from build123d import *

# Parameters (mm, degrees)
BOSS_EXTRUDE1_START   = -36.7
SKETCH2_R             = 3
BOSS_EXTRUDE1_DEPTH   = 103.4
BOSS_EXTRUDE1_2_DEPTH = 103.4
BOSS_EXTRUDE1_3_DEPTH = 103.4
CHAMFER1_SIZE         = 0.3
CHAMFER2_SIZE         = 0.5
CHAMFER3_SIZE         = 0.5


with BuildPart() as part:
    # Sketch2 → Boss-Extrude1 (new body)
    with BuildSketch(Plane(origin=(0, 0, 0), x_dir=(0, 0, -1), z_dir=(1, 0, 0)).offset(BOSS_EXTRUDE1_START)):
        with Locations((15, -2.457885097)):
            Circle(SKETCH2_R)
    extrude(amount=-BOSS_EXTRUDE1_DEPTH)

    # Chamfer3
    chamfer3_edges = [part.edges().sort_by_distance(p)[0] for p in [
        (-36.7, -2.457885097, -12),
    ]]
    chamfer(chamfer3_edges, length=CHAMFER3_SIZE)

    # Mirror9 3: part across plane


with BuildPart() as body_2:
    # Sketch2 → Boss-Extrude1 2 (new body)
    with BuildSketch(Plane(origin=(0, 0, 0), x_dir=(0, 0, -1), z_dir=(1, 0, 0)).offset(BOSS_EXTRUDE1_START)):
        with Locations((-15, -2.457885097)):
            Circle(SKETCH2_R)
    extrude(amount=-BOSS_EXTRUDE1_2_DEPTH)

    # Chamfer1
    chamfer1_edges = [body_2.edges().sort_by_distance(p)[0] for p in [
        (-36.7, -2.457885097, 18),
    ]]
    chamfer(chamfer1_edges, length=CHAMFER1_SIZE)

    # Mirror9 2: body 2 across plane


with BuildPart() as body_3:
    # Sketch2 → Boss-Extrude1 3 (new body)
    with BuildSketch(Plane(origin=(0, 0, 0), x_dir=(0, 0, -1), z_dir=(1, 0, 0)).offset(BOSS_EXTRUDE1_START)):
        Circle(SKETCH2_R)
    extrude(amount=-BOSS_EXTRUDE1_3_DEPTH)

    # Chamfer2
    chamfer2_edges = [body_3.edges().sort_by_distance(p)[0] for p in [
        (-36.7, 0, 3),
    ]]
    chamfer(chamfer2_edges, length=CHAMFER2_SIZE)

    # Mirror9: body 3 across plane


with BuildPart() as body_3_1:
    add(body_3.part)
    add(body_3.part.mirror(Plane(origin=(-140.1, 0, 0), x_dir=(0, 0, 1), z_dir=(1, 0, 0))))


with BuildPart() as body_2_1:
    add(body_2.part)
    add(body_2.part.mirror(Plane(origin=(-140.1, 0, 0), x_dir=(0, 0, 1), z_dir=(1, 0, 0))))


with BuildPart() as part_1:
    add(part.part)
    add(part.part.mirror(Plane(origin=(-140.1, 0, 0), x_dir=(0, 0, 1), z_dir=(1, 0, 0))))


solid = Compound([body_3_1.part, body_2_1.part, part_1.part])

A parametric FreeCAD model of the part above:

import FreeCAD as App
import Part
import Sketcher
Q = App.Units.Quantity


def edges_at(feature, points):
    """Names of the edges that pass closest to the given points."""
    edges = feature.Shape.Edges
    near = lambda p: min(range(len(edges)), key=lambda i: edges[i].distToShape(Part.Vertex(*p))[0])
    return sorted({f"Edge{near(p) + 1}" for p in points})

doc = App.newDocument("Part")
body = doc.addObject("PartDesign::Body", "Body")

sketch1 = doc.addObject("Sketcher::SketchObject", "Sketch")
body.addObject(sketch1)
sketch1.AttachmentSupport = (doc.YZ_Plane, [""])
sketch1.MapMode = "FlatFace"
sketch1.AttachmentOffset = App.Placement(App.Vector(0, 0, -36.7), App.Rotation())
sketch1.addGeometry(Part.Circle(App.Vector(-2.5, -15, 0), App.Vector(0, 0, 1), 3), False)
sketch1.addConstraint([
    Sketcher.Constraint("Diameter", 0, Q("6 mm")),
    Sketcher.Constraint("DistanceY", 0, 3, -1, 1, Q("15 mm")),
    Sketcher.Constraint("DistanceX", 0, 3, -1, 1, Q("2.457885 mm")),
])
pad1 = doc.addObject("PartDesign::Pad", "Pad")
body.addObject(pad1)
pad1.Profile = sketch1
pad1.Length = 103.4
pad1.Reversed = True
doc.recompute()

chamfer = doc.addObject("PartDesign::Chamfer", "Chamfer")
body.addObject(chamfer)
chamfer.Base = (pad1, edges_at(pad1, [(-36.7, -2.458, -12)]))
chamfer.Size = 0.5
body2 = doc.addObject("PartDesign::Body", "Body001")

sketch2 = doc.addObject("Sketcher::SketchObject", "Sketch001")
body2.addObject(sketch2)
sketch2.AttachmentSupport = (doc.getObject("YZ_Plane001"), [""])
sketch2.MapMode = "FlatFace"
sketch2.AttachmentOffset = App.Placement(App.Vector(0, 0, -36.7), App.Rotation())
sketch2.addGeometry(Part.Circle(App.Vector(-2.5, 15, 0), App.Vector(0, 0, 1), 3), False)
sketch2.addConstraint([
    Sketcher.Constraint("Diameter", 0, Q("6 mm")),
    Sketcher.Constraint("DistanceY", -1, 1, 0, 3, Q("15 mm")),
    Sketcher.Constraint("DistanceX", 0, 3, -1, 1, Q("2.457885 mm")),
])
pad2 = doc.addObject("PartDesign::Pad", "Pad001")
body2.addObject(pad2)
pad2.Profile = sketch2
pad2.Length = 103.4
pad2.Reversed = True
doc.recompute()

chamfer2 = doc.addObject("PartDesign::Chamfer", "Chamfer001")
body2.addObject(chamfer2)
chamfer2.Base = (pad2, edges_at(pad2, [(-36.7, -2.458, 18)]))
chamfer2.Size = 0.3
body3 = doc.addObject("PartDesign::Body", "Body002")

sketch3 = doc.addObject("Sketcher::SketchObject", "Sketch002")
body3.addObject(sketch3)
sketch3.AttachmentSupport = (doc.getObject("YZ_Plane002"), [""])
sketch3.MapMode = "FlatFace"
sketch3.AttachmentOffset = App.Placement(App.Vector(0, 0, -36.7), App.Rotation())
sketch3.addGeometry(Part.Circle(App.Vector(0, 0, 0), App.Vector(0, 0, 1), 3), False)
sketch3.addConstraint([
    Sketcher.Constraint("Coincident", 0, 3, -1, 1),
    Sketcher.Constraint("Diameter", 0, Q("6 mm")),
])
pad3 = doc.addObject("PartDesign::Pad", "Pad002")
body3.addObject(pad3)
pad3.Profile = sketch3
pad3.Length = 103.4
pad3.Reversed = True
doc.recompute()

chamfer3 = doc.addObject("PartDesign::Chamfer", "Chamfer002")
body3.addObject(chamfer3)
chamfer3.Base = (pad3, edges_at(pad3, [(-36.7, 0, 3)]))
chamfer3.Size = 0.5
body4 = doc.addObject("PartDesign::Body", "Body003")
doc.recompute()

body4.BaseFeature = body3
doc.recompute()

mirroring = doc.addObject("Part::Mirroring", "Mirroring")
mirroring.Source = body3
mirroring.Base = App.Vector(-140.1, 0, 0)
mirroring.Normal = App.Vector(1, 0, 0)
body5 = doc.addObject("PartDesign::Body", "Body004")
body5.BaseFeature = mirroring
boolean = doc.addObject("PartDesign::Boolean", "Boolean")
body4.addObject(boolean)
boolean.Type = "Fuse"
boolean.addObjects([body5])
doc.recompute()
body6 = doc.addObject("PartDesign::Body", "Body005")
doc.recompute()

body6.BaseFeature = body2
doc.recompute()

mirroring2 = doc.addObject("Part::Mirroring", "Mirroring001")
mirroring2.Source = body2
mirroring2.Base = App.Vector(-140.1, 0, 0)
mirroring2.Normal = App.Vector(1, 0, 0)
body7 = doc.addObject("PartDesign::Body", "Body006")
body7.BaseFeature = mirroring2
boolean2 = doc.addObject("PartDesign::Boolean", "Boolean001")
body6.addObject(boolean2)
boolean2.Type = "Fuse"
boolean2.addObjects([body7])
doc.recompute()
body8 = doc.addObject("PartDesign::Body", "Body007")
doc.recompute()

body8.BaseFeature = body
doc.recompute()

mirroring3 = doc.addObject("Part::Mirroring", "Mirroring002")
mirroring3.Source = body
mirroring3.Base = App.Vector(-140.1, 0, 0)
mirroring3.Normal = App.Vector(1, 0, 0)
body9 = doc.addObject("PartDesign::Body", "Body008")
body9.BaseFeature = mirroring3
boolean3 = doc.addObject("PartDesign::Boolean", "Boolean002")
body8.addObject(boolean3)
boolean3.Type = "Fuse"
boolean3.addObjects([body9])
doc.recompute()
mirroring.Visibility = False
mirroring2.Visibility = False
mirroring3.Visibility = False

doc.recompute()
